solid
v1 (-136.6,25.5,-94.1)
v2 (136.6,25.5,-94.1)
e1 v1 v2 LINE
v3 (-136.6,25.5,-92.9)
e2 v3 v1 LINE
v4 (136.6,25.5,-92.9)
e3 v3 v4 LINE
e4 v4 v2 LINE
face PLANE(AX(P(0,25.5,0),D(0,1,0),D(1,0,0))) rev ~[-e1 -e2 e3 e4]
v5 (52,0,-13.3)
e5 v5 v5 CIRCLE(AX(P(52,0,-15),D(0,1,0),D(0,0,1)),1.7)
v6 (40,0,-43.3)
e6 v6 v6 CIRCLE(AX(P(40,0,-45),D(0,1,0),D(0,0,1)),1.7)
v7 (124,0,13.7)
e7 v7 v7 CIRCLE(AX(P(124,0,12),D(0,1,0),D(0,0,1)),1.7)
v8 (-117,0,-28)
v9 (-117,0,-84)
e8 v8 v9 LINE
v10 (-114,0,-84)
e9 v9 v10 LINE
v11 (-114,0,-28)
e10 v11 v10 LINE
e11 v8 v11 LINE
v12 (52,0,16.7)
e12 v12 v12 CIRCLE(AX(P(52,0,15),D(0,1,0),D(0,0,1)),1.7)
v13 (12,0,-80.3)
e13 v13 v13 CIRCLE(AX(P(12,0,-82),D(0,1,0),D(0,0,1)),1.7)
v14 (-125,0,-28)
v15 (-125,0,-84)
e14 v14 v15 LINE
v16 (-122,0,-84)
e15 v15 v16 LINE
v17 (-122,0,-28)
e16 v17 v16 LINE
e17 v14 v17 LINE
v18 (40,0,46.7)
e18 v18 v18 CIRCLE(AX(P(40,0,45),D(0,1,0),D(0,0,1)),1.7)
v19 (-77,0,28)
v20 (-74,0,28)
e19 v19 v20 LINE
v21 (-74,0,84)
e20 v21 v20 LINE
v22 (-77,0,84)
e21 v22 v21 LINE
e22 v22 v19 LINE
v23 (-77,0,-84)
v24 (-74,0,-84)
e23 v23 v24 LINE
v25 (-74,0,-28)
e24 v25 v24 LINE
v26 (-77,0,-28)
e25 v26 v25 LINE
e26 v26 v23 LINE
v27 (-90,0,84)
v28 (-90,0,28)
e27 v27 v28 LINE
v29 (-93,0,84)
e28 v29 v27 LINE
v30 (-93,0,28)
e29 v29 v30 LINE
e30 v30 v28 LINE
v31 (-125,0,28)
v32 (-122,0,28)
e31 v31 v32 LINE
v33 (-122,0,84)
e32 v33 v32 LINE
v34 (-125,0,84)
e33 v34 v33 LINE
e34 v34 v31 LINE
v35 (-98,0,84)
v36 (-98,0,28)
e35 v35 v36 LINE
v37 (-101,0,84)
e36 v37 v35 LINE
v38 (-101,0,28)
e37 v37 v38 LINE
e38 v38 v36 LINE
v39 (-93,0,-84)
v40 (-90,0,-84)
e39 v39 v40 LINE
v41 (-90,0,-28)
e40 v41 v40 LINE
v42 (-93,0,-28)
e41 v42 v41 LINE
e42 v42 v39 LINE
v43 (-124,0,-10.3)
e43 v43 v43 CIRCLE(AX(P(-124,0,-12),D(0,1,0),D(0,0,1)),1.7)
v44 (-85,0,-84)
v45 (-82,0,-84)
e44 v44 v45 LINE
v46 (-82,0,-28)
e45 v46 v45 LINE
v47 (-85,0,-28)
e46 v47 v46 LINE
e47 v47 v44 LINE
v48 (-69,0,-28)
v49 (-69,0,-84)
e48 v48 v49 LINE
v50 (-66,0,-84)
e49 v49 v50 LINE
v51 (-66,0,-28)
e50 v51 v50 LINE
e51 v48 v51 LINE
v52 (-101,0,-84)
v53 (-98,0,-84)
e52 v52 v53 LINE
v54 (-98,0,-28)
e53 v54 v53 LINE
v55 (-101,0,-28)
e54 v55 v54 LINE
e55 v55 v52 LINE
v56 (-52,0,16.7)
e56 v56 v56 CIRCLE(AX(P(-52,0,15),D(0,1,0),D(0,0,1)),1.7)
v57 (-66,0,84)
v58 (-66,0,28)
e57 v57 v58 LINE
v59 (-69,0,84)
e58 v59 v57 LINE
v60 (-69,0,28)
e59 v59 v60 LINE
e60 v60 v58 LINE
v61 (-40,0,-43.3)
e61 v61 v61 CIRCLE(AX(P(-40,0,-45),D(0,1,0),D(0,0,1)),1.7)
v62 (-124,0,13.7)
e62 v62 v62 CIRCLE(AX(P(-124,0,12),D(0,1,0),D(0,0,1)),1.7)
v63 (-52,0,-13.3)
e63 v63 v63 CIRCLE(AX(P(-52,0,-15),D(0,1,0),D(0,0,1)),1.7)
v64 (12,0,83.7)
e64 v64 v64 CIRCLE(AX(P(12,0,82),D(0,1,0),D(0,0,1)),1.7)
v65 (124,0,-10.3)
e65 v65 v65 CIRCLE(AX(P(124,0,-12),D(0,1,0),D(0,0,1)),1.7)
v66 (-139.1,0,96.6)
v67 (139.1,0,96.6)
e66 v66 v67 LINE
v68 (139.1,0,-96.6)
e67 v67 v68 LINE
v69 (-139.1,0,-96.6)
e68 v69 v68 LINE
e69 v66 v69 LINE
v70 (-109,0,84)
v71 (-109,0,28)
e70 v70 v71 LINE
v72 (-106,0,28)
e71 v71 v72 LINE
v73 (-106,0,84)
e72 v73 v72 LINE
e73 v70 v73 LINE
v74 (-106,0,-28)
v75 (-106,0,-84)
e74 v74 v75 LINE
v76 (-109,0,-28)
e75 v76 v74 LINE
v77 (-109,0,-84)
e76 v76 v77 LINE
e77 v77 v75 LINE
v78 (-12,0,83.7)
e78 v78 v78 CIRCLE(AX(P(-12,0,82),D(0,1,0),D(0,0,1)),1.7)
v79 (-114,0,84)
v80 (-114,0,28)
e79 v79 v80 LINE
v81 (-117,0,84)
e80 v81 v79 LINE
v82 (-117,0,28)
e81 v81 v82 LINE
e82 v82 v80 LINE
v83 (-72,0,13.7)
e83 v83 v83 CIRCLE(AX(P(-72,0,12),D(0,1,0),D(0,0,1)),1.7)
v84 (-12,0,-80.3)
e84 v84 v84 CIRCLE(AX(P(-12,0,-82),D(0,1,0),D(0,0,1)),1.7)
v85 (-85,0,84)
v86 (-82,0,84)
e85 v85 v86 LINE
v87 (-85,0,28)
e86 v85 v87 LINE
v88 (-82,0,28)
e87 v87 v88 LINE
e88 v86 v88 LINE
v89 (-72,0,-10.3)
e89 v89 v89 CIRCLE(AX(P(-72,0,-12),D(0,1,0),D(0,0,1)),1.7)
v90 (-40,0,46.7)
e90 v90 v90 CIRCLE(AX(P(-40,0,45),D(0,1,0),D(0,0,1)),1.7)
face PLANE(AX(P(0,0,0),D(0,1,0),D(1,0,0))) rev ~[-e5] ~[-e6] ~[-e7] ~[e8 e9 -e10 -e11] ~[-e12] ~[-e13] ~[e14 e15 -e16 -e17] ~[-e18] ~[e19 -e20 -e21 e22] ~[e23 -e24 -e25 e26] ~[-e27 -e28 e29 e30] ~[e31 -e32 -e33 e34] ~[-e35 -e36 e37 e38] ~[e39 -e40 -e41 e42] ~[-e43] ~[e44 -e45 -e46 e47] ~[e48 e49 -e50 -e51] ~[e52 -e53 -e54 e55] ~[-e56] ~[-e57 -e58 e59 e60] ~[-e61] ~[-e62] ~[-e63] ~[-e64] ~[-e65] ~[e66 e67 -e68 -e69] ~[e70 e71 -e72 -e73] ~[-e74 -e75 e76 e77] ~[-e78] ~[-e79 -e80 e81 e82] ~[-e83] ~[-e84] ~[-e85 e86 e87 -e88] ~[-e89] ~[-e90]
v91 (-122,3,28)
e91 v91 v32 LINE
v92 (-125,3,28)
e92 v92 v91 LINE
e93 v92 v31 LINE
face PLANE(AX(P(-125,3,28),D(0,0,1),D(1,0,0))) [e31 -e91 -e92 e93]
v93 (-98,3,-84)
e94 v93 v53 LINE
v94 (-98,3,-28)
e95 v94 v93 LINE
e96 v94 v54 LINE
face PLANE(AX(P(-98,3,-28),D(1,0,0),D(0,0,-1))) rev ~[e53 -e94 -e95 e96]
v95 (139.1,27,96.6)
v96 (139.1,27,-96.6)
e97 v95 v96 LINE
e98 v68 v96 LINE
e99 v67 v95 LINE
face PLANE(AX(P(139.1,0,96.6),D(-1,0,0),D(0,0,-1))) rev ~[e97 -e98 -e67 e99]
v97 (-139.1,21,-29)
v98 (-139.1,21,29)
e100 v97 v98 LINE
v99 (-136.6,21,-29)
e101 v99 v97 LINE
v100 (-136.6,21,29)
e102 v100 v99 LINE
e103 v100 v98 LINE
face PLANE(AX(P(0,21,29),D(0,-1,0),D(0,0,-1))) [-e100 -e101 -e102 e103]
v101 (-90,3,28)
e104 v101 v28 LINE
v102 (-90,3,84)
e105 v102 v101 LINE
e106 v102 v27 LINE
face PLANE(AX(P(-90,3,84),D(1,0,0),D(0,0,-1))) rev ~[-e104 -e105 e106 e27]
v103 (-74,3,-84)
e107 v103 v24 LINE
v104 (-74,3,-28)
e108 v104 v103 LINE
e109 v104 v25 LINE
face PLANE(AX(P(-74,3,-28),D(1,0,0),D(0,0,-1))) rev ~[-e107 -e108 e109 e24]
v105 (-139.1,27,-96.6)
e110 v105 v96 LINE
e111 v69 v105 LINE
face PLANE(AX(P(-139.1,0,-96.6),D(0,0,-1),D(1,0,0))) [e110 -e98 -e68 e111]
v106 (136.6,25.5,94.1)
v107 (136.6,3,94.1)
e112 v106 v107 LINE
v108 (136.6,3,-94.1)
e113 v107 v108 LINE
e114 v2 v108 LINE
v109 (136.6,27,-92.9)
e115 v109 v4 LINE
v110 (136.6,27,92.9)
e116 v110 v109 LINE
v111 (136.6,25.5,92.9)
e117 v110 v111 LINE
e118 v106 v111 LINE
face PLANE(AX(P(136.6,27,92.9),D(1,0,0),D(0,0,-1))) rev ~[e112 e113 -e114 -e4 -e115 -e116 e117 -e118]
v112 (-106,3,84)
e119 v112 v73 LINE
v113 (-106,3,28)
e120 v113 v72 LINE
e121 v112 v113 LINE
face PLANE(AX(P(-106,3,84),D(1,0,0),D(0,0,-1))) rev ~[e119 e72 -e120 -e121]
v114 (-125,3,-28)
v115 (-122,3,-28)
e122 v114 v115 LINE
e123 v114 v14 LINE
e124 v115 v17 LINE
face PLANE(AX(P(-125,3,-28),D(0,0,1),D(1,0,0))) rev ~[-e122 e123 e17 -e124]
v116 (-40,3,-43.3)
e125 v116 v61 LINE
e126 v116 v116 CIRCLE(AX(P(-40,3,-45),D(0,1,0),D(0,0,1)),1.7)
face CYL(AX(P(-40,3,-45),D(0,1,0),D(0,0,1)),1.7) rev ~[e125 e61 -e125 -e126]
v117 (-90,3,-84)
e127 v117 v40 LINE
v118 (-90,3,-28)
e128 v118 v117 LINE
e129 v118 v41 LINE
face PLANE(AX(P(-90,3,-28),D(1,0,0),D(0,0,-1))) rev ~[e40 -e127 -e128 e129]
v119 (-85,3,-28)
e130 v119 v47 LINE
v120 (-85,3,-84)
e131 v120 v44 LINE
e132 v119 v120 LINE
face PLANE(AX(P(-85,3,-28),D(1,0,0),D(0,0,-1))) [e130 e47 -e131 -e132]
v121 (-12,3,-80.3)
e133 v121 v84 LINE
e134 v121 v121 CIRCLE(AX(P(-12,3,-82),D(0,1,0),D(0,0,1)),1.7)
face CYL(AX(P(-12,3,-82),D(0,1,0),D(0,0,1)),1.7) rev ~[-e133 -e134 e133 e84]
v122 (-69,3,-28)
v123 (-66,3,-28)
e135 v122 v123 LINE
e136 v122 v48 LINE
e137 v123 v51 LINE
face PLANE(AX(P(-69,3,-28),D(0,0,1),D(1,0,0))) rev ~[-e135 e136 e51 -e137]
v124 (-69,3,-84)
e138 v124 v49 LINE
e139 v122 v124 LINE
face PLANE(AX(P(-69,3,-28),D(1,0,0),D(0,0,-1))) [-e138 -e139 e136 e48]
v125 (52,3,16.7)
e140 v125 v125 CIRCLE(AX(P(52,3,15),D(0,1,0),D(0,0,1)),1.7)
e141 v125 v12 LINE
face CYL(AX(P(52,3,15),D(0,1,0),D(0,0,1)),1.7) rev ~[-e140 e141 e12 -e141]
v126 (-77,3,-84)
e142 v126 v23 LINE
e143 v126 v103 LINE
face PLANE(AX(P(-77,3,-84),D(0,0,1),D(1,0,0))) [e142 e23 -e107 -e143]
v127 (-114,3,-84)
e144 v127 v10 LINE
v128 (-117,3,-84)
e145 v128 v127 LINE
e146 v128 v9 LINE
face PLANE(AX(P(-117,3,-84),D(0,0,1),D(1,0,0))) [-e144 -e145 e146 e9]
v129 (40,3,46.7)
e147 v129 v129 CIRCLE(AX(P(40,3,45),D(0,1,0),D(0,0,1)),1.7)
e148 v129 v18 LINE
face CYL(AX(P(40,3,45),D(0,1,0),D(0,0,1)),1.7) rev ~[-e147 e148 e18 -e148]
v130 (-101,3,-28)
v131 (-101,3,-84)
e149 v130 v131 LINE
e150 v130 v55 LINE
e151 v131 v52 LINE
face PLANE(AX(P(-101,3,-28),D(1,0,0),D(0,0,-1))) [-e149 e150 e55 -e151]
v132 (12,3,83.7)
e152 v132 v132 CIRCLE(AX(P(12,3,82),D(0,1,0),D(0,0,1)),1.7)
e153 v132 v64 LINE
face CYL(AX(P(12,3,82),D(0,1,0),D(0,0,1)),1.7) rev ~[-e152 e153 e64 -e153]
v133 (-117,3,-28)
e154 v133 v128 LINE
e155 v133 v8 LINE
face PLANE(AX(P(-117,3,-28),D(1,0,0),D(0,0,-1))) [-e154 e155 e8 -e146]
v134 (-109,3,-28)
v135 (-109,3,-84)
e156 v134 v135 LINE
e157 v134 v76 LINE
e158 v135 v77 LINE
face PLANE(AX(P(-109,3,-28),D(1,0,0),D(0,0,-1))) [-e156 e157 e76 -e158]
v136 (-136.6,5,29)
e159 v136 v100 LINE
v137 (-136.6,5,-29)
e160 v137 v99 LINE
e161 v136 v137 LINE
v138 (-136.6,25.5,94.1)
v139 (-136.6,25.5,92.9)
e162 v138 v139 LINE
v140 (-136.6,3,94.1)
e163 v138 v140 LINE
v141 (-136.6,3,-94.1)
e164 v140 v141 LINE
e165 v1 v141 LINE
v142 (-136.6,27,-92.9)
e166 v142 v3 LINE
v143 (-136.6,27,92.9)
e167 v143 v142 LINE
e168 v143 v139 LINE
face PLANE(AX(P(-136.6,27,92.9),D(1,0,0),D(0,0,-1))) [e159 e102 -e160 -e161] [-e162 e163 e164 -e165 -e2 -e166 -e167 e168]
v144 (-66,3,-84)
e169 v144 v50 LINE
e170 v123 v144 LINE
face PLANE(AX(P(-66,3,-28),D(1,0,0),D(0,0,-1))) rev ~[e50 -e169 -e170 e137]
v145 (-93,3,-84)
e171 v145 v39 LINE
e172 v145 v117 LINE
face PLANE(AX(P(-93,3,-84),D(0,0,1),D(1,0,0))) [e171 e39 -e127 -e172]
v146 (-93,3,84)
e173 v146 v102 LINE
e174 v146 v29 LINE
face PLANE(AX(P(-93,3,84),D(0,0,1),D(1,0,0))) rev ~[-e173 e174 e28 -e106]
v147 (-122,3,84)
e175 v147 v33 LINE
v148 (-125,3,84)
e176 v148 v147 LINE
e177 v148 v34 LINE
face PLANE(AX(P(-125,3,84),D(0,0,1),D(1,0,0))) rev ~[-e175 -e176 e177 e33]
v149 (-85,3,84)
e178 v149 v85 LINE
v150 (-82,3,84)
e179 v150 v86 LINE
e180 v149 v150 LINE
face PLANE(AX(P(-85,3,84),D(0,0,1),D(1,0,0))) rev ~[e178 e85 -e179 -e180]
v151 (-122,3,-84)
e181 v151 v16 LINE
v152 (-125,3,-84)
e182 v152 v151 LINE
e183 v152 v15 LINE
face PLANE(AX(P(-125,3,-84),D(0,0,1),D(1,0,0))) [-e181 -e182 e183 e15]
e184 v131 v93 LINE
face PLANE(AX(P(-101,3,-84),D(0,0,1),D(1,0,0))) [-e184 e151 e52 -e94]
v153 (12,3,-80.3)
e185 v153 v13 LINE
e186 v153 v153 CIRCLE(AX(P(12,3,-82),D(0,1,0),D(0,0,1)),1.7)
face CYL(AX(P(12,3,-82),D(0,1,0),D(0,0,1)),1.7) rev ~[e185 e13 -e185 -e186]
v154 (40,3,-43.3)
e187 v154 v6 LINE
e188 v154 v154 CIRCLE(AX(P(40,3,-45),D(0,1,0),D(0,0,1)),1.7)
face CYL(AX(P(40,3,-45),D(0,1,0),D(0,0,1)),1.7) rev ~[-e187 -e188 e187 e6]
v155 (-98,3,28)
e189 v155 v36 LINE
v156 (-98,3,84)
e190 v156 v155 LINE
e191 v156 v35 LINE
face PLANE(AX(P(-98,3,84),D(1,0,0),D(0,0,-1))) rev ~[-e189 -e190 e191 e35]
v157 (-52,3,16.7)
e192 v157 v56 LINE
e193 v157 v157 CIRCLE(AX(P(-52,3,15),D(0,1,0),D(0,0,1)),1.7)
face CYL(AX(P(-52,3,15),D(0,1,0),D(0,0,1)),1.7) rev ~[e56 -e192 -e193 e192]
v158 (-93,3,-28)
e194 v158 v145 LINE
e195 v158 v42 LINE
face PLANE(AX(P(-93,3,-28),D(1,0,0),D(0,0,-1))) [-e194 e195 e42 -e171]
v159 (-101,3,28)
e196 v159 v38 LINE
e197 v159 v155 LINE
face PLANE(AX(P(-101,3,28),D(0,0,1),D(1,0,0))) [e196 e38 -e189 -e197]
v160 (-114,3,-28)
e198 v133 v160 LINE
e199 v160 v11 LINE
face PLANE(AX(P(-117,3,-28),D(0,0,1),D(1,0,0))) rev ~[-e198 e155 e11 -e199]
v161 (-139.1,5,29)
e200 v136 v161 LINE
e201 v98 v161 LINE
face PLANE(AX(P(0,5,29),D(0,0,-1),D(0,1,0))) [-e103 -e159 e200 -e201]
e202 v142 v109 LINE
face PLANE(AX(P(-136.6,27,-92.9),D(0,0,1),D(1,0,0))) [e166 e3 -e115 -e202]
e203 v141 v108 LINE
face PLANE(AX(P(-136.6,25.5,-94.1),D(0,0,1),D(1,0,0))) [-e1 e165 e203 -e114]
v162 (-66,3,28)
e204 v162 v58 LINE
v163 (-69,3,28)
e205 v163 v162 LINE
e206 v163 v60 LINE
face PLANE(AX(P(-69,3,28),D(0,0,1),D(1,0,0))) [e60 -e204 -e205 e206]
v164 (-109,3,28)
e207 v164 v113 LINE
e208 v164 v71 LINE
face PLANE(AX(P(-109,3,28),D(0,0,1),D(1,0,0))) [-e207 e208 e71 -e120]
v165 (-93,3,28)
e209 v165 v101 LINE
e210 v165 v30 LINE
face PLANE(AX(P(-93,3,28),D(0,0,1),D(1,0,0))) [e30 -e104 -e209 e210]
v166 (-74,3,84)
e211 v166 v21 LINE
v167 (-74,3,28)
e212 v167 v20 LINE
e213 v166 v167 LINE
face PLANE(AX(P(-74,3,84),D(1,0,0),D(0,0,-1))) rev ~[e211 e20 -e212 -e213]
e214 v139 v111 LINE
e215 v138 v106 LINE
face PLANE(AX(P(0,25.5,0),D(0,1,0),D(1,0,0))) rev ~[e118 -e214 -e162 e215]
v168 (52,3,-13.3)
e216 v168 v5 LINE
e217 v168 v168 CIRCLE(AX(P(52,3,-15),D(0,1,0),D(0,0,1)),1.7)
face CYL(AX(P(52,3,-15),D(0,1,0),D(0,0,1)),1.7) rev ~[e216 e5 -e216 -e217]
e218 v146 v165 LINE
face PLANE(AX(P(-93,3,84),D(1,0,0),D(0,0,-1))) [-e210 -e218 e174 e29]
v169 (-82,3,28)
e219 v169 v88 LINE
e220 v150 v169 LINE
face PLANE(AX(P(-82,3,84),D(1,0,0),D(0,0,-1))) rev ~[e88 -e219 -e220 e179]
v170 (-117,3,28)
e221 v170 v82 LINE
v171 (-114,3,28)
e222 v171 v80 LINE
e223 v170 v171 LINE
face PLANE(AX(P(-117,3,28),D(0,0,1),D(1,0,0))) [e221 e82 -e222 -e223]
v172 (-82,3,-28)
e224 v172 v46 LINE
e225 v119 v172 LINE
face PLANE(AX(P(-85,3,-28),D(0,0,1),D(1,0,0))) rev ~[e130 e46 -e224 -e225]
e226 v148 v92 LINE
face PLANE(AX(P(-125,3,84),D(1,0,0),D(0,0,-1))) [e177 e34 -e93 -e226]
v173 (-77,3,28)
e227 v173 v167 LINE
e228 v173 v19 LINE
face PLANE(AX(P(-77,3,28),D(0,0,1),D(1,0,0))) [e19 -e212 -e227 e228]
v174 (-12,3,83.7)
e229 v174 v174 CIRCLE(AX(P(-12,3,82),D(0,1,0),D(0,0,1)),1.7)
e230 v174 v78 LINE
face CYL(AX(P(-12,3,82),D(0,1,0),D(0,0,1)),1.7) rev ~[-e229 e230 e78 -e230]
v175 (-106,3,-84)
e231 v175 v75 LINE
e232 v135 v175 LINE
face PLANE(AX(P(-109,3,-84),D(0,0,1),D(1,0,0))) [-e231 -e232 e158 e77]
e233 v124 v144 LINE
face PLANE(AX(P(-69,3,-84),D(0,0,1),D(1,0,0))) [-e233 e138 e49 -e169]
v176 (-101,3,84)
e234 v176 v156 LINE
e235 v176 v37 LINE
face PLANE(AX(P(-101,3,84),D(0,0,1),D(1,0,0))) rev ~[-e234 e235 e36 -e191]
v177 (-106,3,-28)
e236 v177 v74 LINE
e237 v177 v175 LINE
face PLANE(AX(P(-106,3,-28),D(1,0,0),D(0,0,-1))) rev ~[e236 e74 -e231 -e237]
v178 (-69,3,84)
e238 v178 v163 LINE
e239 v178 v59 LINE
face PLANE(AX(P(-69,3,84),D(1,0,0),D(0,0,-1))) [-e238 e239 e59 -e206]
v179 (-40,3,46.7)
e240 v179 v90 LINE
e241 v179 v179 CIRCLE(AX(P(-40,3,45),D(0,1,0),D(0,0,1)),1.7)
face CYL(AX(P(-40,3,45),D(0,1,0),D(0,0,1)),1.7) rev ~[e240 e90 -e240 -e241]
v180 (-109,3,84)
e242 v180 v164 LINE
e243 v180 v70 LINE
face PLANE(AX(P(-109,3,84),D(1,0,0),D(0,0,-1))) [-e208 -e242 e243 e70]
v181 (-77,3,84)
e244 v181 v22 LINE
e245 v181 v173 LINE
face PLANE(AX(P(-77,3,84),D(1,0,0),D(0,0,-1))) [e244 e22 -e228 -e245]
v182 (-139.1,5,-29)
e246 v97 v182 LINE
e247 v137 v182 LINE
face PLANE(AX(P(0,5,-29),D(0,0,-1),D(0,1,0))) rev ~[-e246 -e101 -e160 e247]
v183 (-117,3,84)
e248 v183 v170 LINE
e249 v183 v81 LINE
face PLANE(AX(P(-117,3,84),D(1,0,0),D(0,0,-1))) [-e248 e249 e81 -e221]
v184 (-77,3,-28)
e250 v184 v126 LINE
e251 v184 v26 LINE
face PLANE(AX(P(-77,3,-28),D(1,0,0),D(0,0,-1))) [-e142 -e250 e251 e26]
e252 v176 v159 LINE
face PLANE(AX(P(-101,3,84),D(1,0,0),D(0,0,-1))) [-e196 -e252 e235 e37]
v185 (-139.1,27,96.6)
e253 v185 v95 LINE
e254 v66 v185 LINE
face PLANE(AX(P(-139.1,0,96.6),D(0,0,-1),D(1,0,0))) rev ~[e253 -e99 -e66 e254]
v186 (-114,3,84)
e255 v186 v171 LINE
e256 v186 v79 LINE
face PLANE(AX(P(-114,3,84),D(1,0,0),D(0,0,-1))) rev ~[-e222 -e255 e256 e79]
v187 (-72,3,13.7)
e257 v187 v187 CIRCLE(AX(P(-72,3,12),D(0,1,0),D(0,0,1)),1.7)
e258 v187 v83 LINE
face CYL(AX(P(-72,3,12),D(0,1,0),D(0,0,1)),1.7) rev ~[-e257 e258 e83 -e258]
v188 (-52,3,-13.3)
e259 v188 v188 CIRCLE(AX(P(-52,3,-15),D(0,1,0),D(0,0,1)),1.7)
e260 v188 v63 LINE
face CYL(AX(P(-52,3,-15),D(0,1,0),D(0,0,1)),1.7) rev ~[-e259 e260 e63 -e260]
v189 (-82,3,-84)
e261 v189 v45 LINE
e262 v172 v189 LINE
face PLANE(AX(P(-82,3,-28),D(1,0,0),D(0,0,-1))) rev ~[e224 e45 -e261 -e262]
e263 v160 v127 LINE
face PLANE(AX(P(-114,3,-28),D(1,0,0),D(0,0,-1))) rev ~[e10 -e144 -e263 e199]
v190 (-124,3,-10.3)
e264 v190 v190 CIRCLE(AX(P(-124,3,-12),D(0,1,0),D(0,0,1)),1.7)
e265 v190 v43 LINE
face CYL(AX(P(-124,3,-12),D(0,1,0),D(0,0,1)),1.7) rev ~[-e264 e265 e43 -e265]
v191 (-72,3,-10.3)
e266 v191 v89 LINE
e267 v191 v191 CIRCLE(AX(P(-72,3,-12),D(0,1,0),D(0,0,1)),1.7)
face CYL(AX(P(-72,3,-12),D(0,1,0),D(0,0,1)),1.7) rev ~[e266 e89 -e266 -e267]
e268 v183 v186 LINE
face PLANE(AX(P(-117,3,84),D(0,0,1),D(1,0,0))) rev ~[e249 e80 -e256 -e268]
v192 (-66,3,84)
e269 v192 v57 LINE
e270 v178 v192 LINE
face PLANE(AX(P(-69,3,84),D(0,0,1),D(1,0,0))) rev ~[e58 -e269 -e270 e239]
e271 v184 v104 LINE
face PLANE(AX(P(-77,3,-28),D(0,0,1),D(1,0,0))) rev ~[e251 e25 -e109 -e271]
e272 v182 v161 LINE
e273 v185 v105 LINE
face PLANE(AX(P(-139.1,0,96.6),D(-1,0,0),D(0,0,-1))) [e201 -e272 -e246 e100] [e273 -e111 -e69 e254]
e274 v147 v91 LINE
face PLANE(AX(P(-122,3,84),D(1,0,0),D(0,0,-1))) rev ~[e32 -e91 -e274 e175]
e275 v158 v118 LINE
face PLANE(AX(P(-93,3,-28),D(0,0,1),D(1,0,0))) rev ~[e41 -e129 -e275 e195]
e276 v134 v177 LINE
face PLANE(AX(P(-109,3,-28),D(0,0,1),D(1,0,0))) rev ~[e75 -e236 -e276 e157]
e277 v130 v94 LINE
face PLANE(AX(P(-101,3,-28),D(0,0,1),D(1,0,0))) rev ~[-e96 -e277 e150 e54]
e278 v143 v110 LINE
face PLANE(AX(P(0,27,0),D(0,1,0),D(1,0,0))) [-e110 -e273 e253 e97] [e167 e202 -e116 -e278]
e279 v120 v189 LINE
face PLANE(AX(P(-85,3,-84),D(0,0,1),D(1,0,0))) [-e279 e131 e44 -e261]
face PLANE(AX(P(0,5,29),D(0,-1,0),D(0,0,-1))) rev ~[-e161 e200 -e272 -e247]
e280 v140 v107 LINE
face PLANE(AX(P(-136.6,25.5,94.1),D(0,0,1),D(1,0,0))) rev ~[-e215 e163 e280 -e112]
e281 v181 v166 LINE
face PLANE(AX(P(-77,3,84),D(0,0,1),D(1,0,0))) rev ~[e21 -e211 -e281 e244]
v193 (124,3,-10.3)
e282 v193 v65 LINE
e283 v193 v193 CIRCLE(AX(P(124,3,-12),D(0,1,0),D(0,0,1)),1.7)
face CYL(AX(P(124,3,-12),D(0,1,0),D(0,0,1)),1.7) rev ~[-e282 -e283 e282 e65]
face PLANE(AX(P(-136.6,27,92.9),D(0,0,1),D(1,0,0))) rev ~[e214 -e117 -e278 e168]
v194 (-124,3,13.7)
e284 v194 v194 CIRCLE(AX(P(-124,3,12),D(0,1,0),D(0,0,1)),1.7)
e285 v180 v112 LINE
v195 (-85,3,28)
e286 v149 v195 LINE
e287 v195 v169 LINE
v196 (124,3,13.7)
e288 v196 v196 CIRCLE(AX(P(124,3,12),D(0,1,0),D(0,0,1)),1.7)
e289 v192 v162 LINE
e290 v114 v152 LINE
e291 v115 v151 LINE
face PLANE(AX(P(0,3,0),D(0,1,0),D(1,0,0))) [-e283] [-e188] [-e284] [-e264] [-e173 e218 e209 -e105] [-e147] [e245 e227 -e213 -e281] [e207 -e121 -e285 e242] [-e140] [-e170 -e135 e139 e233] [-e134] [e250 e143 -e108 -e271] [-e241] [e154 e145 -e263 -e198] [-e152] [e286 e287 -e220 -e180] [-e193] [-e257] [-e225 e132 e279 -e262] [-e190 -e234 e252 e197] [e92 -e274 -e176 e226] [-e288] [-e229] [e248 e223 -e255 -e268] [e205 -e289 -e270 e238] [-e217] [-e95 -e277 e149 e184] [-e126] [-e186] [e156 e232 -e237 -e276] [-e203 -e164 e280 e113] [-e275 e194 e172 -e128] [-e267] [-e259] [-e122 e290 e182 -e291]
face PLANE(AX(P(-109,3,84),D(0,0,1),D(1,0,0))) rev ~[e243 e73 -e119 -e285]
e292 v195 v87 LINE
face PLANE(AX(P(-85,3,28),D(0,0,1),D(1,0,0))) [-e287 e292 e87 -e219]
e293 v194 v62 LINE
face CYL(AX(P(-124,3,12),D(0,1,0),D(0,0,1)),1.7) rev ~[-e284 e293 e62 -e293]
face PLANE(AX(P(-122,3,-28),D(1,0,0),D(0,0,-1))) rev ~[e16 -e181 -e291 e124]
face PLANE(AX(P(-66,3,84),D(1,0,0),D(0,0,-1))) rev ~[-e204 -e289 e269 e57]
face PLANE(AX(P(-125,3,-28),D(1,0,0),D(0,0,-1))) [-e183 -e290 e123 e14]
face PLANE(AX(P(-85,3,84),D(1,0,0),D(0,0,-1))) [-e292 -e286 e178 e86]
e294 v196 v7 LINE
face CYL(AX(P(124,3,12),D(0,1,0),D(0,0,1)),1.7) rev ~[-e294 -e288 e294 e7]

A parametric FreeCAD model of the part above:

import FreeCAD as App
import Part
import Sketcher
from FreeCAD import Vector

doc = App.newDocument("Part")
params = doc.addObject("Spreadsheet::Sheet", "Params")
for row, (alias, value) in enumerate([
    ("sketch1_width", "278.2 mm"),
    ("sketch1_height", "193.2 mm"),
    ("pad1_length", "27 mm"),
    ("sketch2_width", "273.2 mm"),
    ("sketch2_height", "185.8 mm"),
    ("pocket1_length", "1.5 mm"),
    ("sketch3_width", "273.2 mm"),
    ("sketch3_height", "188.2 mm"),
    ("pocket2_length", "22.5 mm"),
    ("sketch4_width", "3 mm"),
    ("sketch4_height", "56 mm"),
    ("pocket3_length", "4 mm"),
    ("sketch5_width", "16 mm"),
    ("sketch5_height", "58 mm"),
    ("pocket4_length", "140.1 mm"),
    ("sketch6_diameter", "3.4 mm"),
    ("pocket5_length", "4 mm"),
], start=1):
    params.set(f"A{row}", alias)
    params.set(f"B{row}", "=" + value)
    params.setAlias(f"B{row}", alias)

body = doc.addObject("PartDesign::Body", "Body")

# Sketch on XZ plane
sketch1 = body.newObject("Sketcher::SketchObject", "Sketch")
sketch1.AttachmentSupport = (doc.getObject("XZ_Plane"), [""])
sketch1.MapMode = "FlatFace"
sketch1.addGeometry(Part.LineSegment(Vector(-139, -97, 0), Vector(-139, 97, 0)), False)
sketch1.addGeometry(Part.LineSegment(Vector(-139, 97, 0), Vector(139, 97, 0)), False)
sketch1.addGeometry(Part.LineSegment(Vector(139, 97, 0), Vector(139, -97, 0)), False)
sketch1.addGeometry(Part.LineSegment(Vector(139, -97, 0), Vector(-139, -97, 0)), False)
sketch1.addConstraint(Sketcher.Constraint("Coincident", 0, 2, 1, 1))
sketch1.addConstraint(Sketcher.Constraint("Coincident", 1, 2, 2, 1))
sketch1.addConstraint(Sketcher.Constraint("Coincident", 2, 2, 3, 1))
sketch1.addConstraint(Sketcher.Constraint("Coincident", 3, 2, 0, 1))
sketch1.addConstraint(Sketcher.Constraint("Vertical", 0))
sketch1.addConstraint(Sketcher.Constraint("Horizontal", 1))
sketch1.addConstraint(Sketcher.Constraint("Vertical", 2))
sketch1.addConstraint(Sketcher.Constraint("Horizontal", 3))
sketch1.addConstraint(Sketcher.Constraint("Symmetric", 0, 2, 2, 2, -1, 1))
sketch1.addConstraint(Sketcher.Constraint("DistanceX", 1, 1, 1, 2, 278.2))
sketch1.addConstraint(Sketcher.Constraint("DistanceY", 0, 1, 0, 2, 193.2))
sketch1.setExpression("Constraints[9]", "Params.sketch1_width")
sketch1.setExpression("Constraints[10]", "Params.sketch1_height")
pad1 = body.newObject("PartDesign::Pad", "Pad")
pad1.Profile = sketch1
pad1.setExpression("Length", "Params.pad1_length")
pad1.Reversed = True

# Sketch on XZ plane
sketch2 = body.newObject("Sketcher::SketchObject", "Sketch001")
sketch2.AttachmentSupport = (doc.getObject("XZ_Plane"), [""])
sketch2.MapMode = "FlatFace"
sketch2.AttachmentOffset = App.Placement(Vector(0, 0, -27), App.Rotation())
sketch2.addGeometry(Part.LineSegment(Vector(-137, -93, 0), Vector(-137, 93, 0)), False)
sketch2.addGeometry(Part.LineSegment(Vector(-137, 93, 0), Vector(137, 93, 0)), False)
sketch2.addGeometry(Part.LineSegment(Vector(137, 93, 0), Vector(137, -93, 0)), False)
sketch2.addGeometry(Part.LineSegment(Vector(137, -93, 0), Vector(-137, -93, 0)), False)
sketch2.addConstraint(Sketcher.Constraint("Coincident", 0, 2, 1, 1))
sketch2.addConstraint(Sketcher.Constraint("Coincident", 1, 2, 2, 1))
sketch2.addConstraint(Sketcher.Constraint("Coincident", 2, 2, 3, 1))
sketch2.addConstraint(Sketcher.Constraint("Coincident", 3, 2, 0, 1))
sketch2.addConstraint(Sketcher.Constraint("Vertical", 0))
sketch2.addConstraint(Sketcher.Constraint("Horizontal", 1))
sketch2.addConstraint(Sketcher.Constraint("Vertical", 2))
sketch2.addConstraint(Sketcher.Constraint("Horizontal", 3))
sketch2.addConstraint(Sketcher.Constraint("Symmetric", 0, 2, 2, 2, -1, 1))
sketch2.addConstraint(Sketcher.Constraint("DistanceX", 1, 1, 1, 2, 273.2))
sketch2.addConstraint(Sketcher.Constraint("DistanceY", 0, 1, 0, 2, 185.8))
sketch2.setExpression("Constraints[9]", "Params.sketch2_width")
sketch2.setExpression("Constraints[10]", "Params.sketch2_height")
pocket1 = body.newObject("PartDesign::Pocket", "Pocket")
pocket1.Profile = sketch2
pocket1.setExpression("Length", "Params.pocket1_length")
pocket1.Reversed = True

# Sketch on XZ plane
sketch3 = body.newObject("Sketcher::SketchObject", "Sketch002")
sketch3.AttachmentSupport = (doc.getObject("XZ_Plane"), [""])
sketch3.MapMode = "FlatFace"
sketch3.AttachmentOffset = App.Placement(Vector(0, 0, -25.5), App.Rotation())
sketch3.addGeometry(Part.LineSegment(Vector(-137, -94, 0), Vector(-137, 94, 0)), False)
sketch3.addGeometry(Part.LineSegment(Vector(-137, 94, 0), Vector(137, 94, 0)), False)
sketch3.addGeometry(Part.LineSegment(Vector(137, 94, 0), Vector(137, -94, 0)), False)
sketch3.addGeometry(Part.LineSegment(Vector(137, -94, 0), Vector(-137, -94, 0)), False)
sketch3.addConstraint(Sketcher.Constraint("Coincident", 0, 2, 1, 1))
sketch3.addConstraint(Sketcher.Constraint("Coincident", 1, 2, 2, 1))
sketch3.addConstraint(Sketcher.Constraint("Coincident", 2, 2, 3, 1))
sketch3.addConstraint(Sketcher.Constraint("Coincident", 3, 2, 0, 1))
sketch3.addConstraint(Sketcher.Constraint("Vertical", 0))
sketch3.addConstraint(Sketcher.Constraint("Horizontal", 1))
sketch3.addConstraint(Sketcher.Constraint("Vertical", 2))
sketch3.addConstraint(Sketcher.Constraint("Horizontal", 3))
sketch3.addConstraint(Sketcher.Constraint("Symmetric", 0, 2, 2, 2, -1, 1))
sketch3.addConstraint(Sketcher.Constraint("DistanceX", 1, 1, 1, 2, 273.2))
sketch3.addConstraint(Sketcher.Constraint("DistanceY", 0, 1, 0, 2, 188.2))
sketch3.setExpression("Constraints[9]", "Params.sketch3_width")
sketch3.setExpression("Constraints[10]", "Params.sketch3_height")
pocket2 = body.newObject("PartDesign::Pocket", "Pocket001")
pocket2.Profile = sketch3
pocket2.setExpression("Length", "Params.pocket2_length")
pocket2.Reversed = True

# Sketch on XZ plane
sketch4 = body.newObject("Sketcher::SketchObject", "Sketch003")
sketch4.AttachmentSupport = (doc.getObject("XZ_Plane"), [""])
sketch4.MapMode = "FlatFace"
sketch4.AttachmentOffset = App.Placement(Vector(0, 0, -3), App.Rotation())
sketch4.addGeometry(Part.LineSegment(Vector(-69, -84, 0), Vector(-69, -28, 0)), False)
sketch4.addGeometry(Part.LineSegment(Vector(-69, -28, 0), Vector(-66, -28, 0)), False)
sketch4.addGeometry(Part.LineSegment(Vector(-66, -28, 0), Vector(-66, -84, 0)), False)
sketch4.addGeometry(Part.LineSegment(Vector(-66, -84, 0), Vector(-69, -84, 0)), False)
sketch4.addGeometry(Part.LineSegment(Vector(-69, 28, 0), Vector(-69, 84, 0)), False)
sketch4.addGeometry(Part.LineSegment(Vector(-69, 84, 0), Vector(-66, 84, 0)), False)
sketch4.addGeometry(Part.LineSegment(Vector(-66, 84, 0), Vector(-66, 28, 0)), False)
sketch4.addGeometry(Part.LineSegment(Vector(-66, 28, 0), Vector(-69, 28, 0)), False)
sketch4.addGeometry(Part.LineSegment(Vector(-77, -84, 0), Vector(-77, -28, 0)), False)
sketch4.addGeometry(Part.LineSegment(Vector(-77, -28, 0), Vector(-74, -28, 0)), False)
sketch4.addGeometry(Part.LineSegment(Vector(-74, -28, 0), Vector(-74, -84, 0)), False)
sketch4.addGeometry(Part.LineSegment(Vector(-74, -84, 0), Vector(-77, -84, 0)), False)
sketch4.addGeometry(Part.LineSegment(Vector(-77, 28, 0), Vector(-77, 84, 0)), False)
sketch4.addGeometry(Part.LineSegment(Vector(-77, 84, 0), Vector(-74, 84, 0)), False)
sketch4.addGeometry(Part.LineSegment(Vector(-74, 84, 0), Vector(-74, 28, 0)), False)
sketch4.addGeometry(Part.LineSegment(Vector(-74, 28, 0), Vector(-77, 28, 0)), False)
sketch4.addGeometry(Part.LineSegment(Vector(-85, -84, 0), Vector(-85, -28, 0)), False)
sketch4.addGeometry(Part.LineSegment(Vector(-85, -28, 0), Vector(-82, -28, 0)), False)
sketch4.addGeometry(Part.LineSegment(Vector(-82, -28, 0), Vector(-82, -84, 0)), False)
sketch4.addGeometry(Part.LineSegment(Vector(-82, -84, 0), Vector(-85, -84, 0)), False)
sketch4.addGeometry(Part.LineSegment(Vector(-85, 28, 0), Vector(-85, 84, 0)), False)
sketch4.addGeometry(Part.LineSegment(Vector(-85, 84, 0), Vector(-82, 84, 0)), False)
sketch4.addGeometry(Part.LineSegment(Vector(-82, 84, 0), Vector(-82, 28, 0)), False)
sketch4.addGeometry(Part.LineSegment(Vector(-82, 28, 0), Vector(-85, 28, 0)), False)
sketch4.addGeometry(Part.LineSegment(Vector(-93, -84, 0), Vector(-93, -28, 0)), False)
sketch4.addGeometry(Part.LineSegment(Vector(-93, -28, 0), Vector(-90, -28, 0)), False)
sketch4.addGeometry(Part.LineSegment(Vector(-90, -28, 0), Vector(-90, -84, 0)), False)
sketch4.addGeometry(Part.LineSegment(Vector(-90, -84, 0), Vector(-93, -84, 0)), False)
sketch4.addGeometry(Part.LineSegment(Vector(-93, 28, 0), Vector(-93, 84, 0)), False)
sketch4.addGeometry(Part.LineSegment(Vector(-93, 84, 0), Vector(-90, 84, 0)), False)
sketch4.addGeometry(Part.LineSegment(Vector(-90, 84, 0), Vector(-90, 28, 0)), False)
sketch4.addGeometry(Part.LineSegment(Vector(-90, 28, 0), Vector(-93, 28, 0)), False)
sketch4.addGeometry(Part.LineSegment(Vector(-101, -84, 0), Vector(-101, -28, 0)), False)
sketch4.addGeometry(Part.LineSegment(Vector(-101, -28, 0), Vector(-98, -28, 0)), False)
sketch4.addGeometry(Part.LineSegment(Vector(-98, -28, 0), Vector(-98, -84, 0)), False)
sketch4.addGeometry(Part.LineSegment(Vector(-98, -84, 0), Vector(-101, -84, 0)), False)
sketch4.addGeometry(Part.LineSegment(Vector(-101, 28, 0), Vector(-101, 84, 0)), False)
sketch4.addGeometry(Part.LineSegment(Vector(-101, 84, 0), Vector(-98, 84, 0)), False)
sketch4.addGeometry(Part.LineSegment(Vector(-98, 84, 0), Vector(-98, 28, 0)), False)
sketch4.addGeometry(Part.LineSegment(Vector(-98, 28, 0), Vector(-101, 28, 0)), False)
sketch4.addGeometry(Part.LineSegment(Vector(-109, -84, 0), Vector(-109, -28, 0)), False)
sketch4.addGeometry(Part.LineSegment(Vector(-109, -28, 0), Vector(-106, -28, 0)), False)
sketch4.addGeometry(Part.LineSegment(Vector(-106, -28, 0), Vector(-106, -84, 0)), False)
sketch4.addGeometry(Part.LineSegment(Vector(-106, -84, 0), Vector(-109, -84, 0)), False)
sketch4.addGeometry(Part.LineSegment(Vector(-109, 28, 0), Vector(-109, 84, 0)), False)
sketch4.addGeometry(Part.LineSegment(Vector(-109, 84, 0), Vector(-106, 84, 0)), False)
sketch4.addGeometry(Part.LineSegment(Vector(-106, 84, 0), Vector(-106, 28, 0)), False)
sketch4.addGeometry(Part.LineSegment(Vector(-106, 28, 0), Vector(-109, 28, 0)), False)
sketch4.addGeometry(Part.LineSegment(Vector(-117, -84, 0), Vector(-117, -28, 0)), False)
sketch4.addGeometry(Part.LineSegment(Vector(-117, -28, 0), Vector(-114, -28, 0)), False)
sketch4.addGeometry(Part.LineSegment(Vector(-114, -28, 0), Vector(-114, -84, 0)), False)
sketch4.addGeometry(Part.LineSegment(Vector(-114, -84, 0), Vector(-117, -84, 0)), False)
sketch4.addGeometry(Part.LineSegment(Vector(-117, 28, 0), Vector(-117, 84, 0)), False)
sketch4.addGeometry(Part.LineSegment(Vector(-117, 84, 0), Vector(-114, 84, 0)), False)
sketch4.addGeometry(Part.LineSegment(Vector(-114, 84, 0), Vector(-114, 28, 0)), False)
sketch4.addGeometry(Part.LineSegment(Vector(-114, 28, 0), Vector(-117, 28, 0)), False)
sketch4.addGeometry(Part.LineSegment(Vector(-125, -84, 0), Vector(-125, -28, 0)), False)
sketch4.addGeometry(Part.LineSegment(Vector(-125, -28, 0), Vector(-122, -28, 0)), False)
sketch4.addGeometry(Part.LineSegment(Vector(-122, -28, 0), Vector(-122, -84, 0)), False)
sketch4.addGeometry(Part.LineSegment(Vector(-122, -84, 0), Vector(-125, -84, 0)), False)
sketch4.addGeometry(Part.LineSegment(Vector(-125, 28, 0), Vector(-125, 84, 0)), False)
sketch4.addGeometry(Part.LineSegment(Vector(-125, 84, 0), Vector(-122, 84, 0)), False)
sketch4.addGeometry(Part.LineSegment(Vector(-122, 84, 0), Vector(-122, 28, 0)), False)
sketch4.addGeometry(Part.LineSegment(Vector(-122, 28, 0), Vector(-125, 28, 0)), False)
sketch4.addConstraint(Sketcher.Constraint("Coincident", 0, 2, 1, 1))
sketch4.addConstraint(Sketcher.Constraint("Coincident", 1, 2, 2, 1))
sketch4.addConstraint(Sketcher.Constraint("Coincident", 2, 2, 3, 1))
sketch4.addConstraint(Sketcher.Constraint("Coincident", 3, 2, 0, 1))
sketch4.addConstraint(Sketcher.Constraint("Coincident", 4, 2, 5, 1))
sketch4.addConstraint(Sketcher.Constraint("Coincident", 5, 2, 6, 1))
sketch4.addConstraint(Sketcher.Constraint("Coincident", 6, 2, 7, 1))
sketch4.addConstraint(Sketcher.Constraint("Coincident", 7, 2, 4, 1))
sketch4.addConstraint(Sketcher.Constraint("Coincident", 8, 2, 9, 1))
sketch4.addConstraint(Sketcher.Constraint("Coincident", 9, 2, 10, 1))
sketch4.addConstraint(Sketcher.Constraint("Coincident", 10, 2, 11, 1))
sketch4.addConstraint(Sketcher.Constraint("Coincident", 11, 2, 8, 1))
sketch4.addConstraint(Sketcher.Constraint("Coincident", 12, 2, 13, 1))
sketch4.addConstraint(Sketcher.Constraint("Coincident", 13, 2, 14, 1))
sketch4.addConstraint(Sketcher.Constraint("Coincident", 14, 2, 15, 1))
sketch4.addConstraint(Sketcher.Constraint("Coincident", 15, 2, 12, 1))
sketch4.addConstraint(Sketcher.Constraint("Coincident", 16, 2, 17, 1))
sketch4.addConstraint(Sketcher.Constraint("Coincident", 17, 2, 18, 1))
sketch4.addConstraint(Sketcher.Constraint("Coincident", 18, 2, 19, 1))
sketch4.addConstraint(Sketcher.Constraint("Coincident", 19, 2, 16, 1))
sketch4.addConstraint(Sketcher.Constraint("Coincident", 20, 2, 21, 1))
sketch4.addConstraint(Sketcher.Constraint("Coincident", 21, 2, 22, 1))
sketch4.addConstraint(Sketcher.Constraint("Coincident", 22, 2, 23, 1))
sketch4.addConstraint(Sketcher.Constraint("Coincident", 23, 2, 20, 1))
sketch4.addConstraint(Sketcher.Constraint("Coincident", 24, 2, 25, 1))
sketch4.addConstraint(Sketcher.Constraint("Coincident", 25, 2, 26, 1))
sketch4.addConstraint(Sketcher.Constraint("Coincident", 26, 2, 27, 1))
sketch4.addConstraint(Sketcher.Constraint("Coincident", 27, 2, 24, 1))
sketch4.addConstraint(Sketcher.Constraint("Coincident", 28, 2, 29, 1))
sketch4.addConstraint(Sketcher.Constraint("Coincident", 29, 2, 30, 1))
sketch4.addConstraint(Sketcher.Constraint("Coincident", 30, 2, 31, 1))
sketch4.addConstraint(Sketcher.Constraint("Coincident", 31, 2, 28, 1))
sketch4.addConstraint(Sketcher.Constraint("Coincident", 32, 2, 33, 1))
sketch4.addConstraint(Sketcher.Constraint("Coincident", 33, 2, 34, 1))
sketch4.addConstraint(Sketcher.Constraint("Coincident", 34, 2, 35, 1))
sketch4.addConstraint(Sketcher.Constraint("Coincident", 35, 2, 32, 1))
sketch4.addConstraint(Sketcher.Constraint("Coincident", 36, 2, 37, 1))
sketch4.addConstraint(Sketcher.Constraint("Coincident", 37, 2, 38, 1))
sketch4.addConstraint(Sketcher.Constraint("Coincident", 38, 2, 39, 1))
sketch4.addConstraint(Sketcher.Constraint("Coincident", 39, 2, 36, 1))
sketch4.addConstraint(Sketcher.Constraint("Coincident", 40, 2, 41, 1))
sketch4.addConstraint(Sketcher.Constraint("Coincident", 41, 2, 42, 1))
sketch4.addConstraint(Sketcher.Constraint("Coincident", 42, 2, 43, 1))
sketch4.addConstraint(Sketcher.Constraint("Coincident", 43, 2, 40, 1))
sketch4.addConstraint(Sketcher.Constraint("Coincident", 44, 2, 45, 1))
sketch4.addConstraint(Sketcher.Constraint("Coincident", 45, 2, 46, 1))
sketch4.addConstraint(Sketcher.Constraint("Coincident", 46, 2, 47, 1))
sketch4.addConstraint(Sketcher.Constraint("Coincident", 47, 2, 44, 1))
sketch4.addConstraint(Sketcher.Constraint("Coincident", 48, 2, 49, 1))
sketch4.addConstraint(Sketcher.Constraint("Coincident", 49, 2, 50, 1))
sketch4.addConstraint(Sketcher.Constraint("Coincident", 50, 2, 51, 1))
sketch4.addConstraint(Sketcher.Constraint("Coincident", 51, 2, 48, 1))
sketch4.addConstraint(Sketcher.Constraint("Coincident", 52, 2, 53, 1))
sketch4.addConstraint(Sketcher.Constraint("Coincident", 53, 2, 54, 1))
sketch4.addConstraint(Sketcher.Constraint("Coincident", 54, 2, 55, 1))
sketch4.addConstraint(Sketcher.Constraint("Coincident", 55, 2, 52, 1))
sketch4.addConstraint(Sketcher.Constraint("Coincident", 56, 2, 57, 1))
sketch4.addConstraint(Sketcher.Constraint("Coincident", 57, 2, 58, 1))
sketch4.addConstraint(Sketcher.Constraint("Coincident", 58, 2, 59, 1))
sketch4.addConstraint(Sketcher.Constraint("Coincident", 59, 2, 56, 1))
sketch4.addConstraint(Sketcher.Constraint("Coincident", 60, 2, 61, 1))
sketch4.addConstraint(Sketcher.Constraint("Coincident", 61, 2, 62, 1))
sketch4.addConstraint(Sketcher.Constraint("Coincident", 62, 2, 63, 1))
sketch4.addConstraint(Sketcher.Constraint("Coincident", 63, 2, 60, 1))
sketch4.addConstraint(Sketcher.Constraint("Vertical", 0))
sketch4.addConstraint(Sketcher.Constraint("Horizontal", 1))
sketch4.addConstraint(Sketcher.Constraint("Vertical", 2))
sketch4.addConstraint(Sketcher.Constraint("Horizontal", 3))
sketch4.addConstraint(Sketcher.Constraint("Vertical", 4))
sketch4.addConstraint(Sketcher.Constraint("Horizontal", 5))
sketch4.addConstraint(Sketcher.Constraint("Vertical", 6))
sketch4.addConstraint(Sketcher.Constraint("Horizontal", 7))
sketch4.addConstraint(Sketcher.Constraint("Vertical", 8))
sketch4.addConstraint(Sketcher.Constraint("Horizontal", 9))
sketch4.addConstraint(Sketcher.Constraint("Vertical", 10))
sketch4.addConstraint(Sketcher.Constraint("Horizontal", 11))
sketch4.addConstraint(Sketcher.Constraint("Vertical", 12))
sketch4.addConstraint(Sketcher.Constraint("Horizontal", 13))
sketch4.addConstraint(Sketcher.Constraint("Vertical", 14))
sketch4.addConstraint(Sketcher.Constraint("Horizontal", 15))
sketch4.addConstraint(Sketcher.Constraint("Vertical", 16))
sketch4.addConstraint(Sketcher.Constraint("Horizontal", 17))
sketch4.addConstraint(Sketcher.Constraint("Vertical", 18))
sketch4.addConstraint(Sketcher.Constraint("Horizontal", 19))
sketch4.addConstraint(Sketcher.Constraint("Vertical", 20))
sketch4.addConstraint(Sketcher.Constraint("Horizontal", 21))
sketch4.addConstraint(Sketcher.Constraint("Vertical", 22))
sketch4.addConstraint(Sketcher.Constraint("Horizontal", 23))
sketch4.addConstraint(Sketcher.Constraint("Vertical", 24))
sketch4.addConstraint(Sketcher.Constraint("Horizontal", 25))
sketch4.addConstraint(Sketcher.Constraint("Vertical", 26))
sketch4.addConstraint(Sketcher.Constraint("Horizontal", 27))
sketch4.addConstraint(Sketcher.Constraint("Vertical", 28))
sketch4.addConstraint(Sketcher.Constraint("Horizontal", 29))
sketch4.addConstraint(Sketcher.Constraint("Vertical", 30))
sketch4.addConstraint(Sketcher.Constraint("Horizontal", 31))
sketch4.addConstraint(Sketcher.Constraint("Vertical", 32))
sketch4.addConstraint(Sketcher.Constraint("Horizontal", 33))
sketch4.addConstraint(Sketcher.Constraint("Vertical", 34))
sketch4.addConstraint(Sketcher.Constraint("Horizontal", 35))
sketch4.addConstraint(Sketcher.Constraint("Vertical", 36))
sketch4.addConstraint(Sketcher.Constraint("Horizontal", 37))
sketch4.addConstraint(Sketcher.Constraint("Vertical", 38))
sketch4.addConstraint(Sketcher.Constraint("Horizontal", 39))
sketch4.addConstraint(Sketcher.Constraint("Vertical", 40))
sketch4.addConstraint(Sketcher.Constraint("Horizontal", 41))
sketch4.addConstraint(Sketcher.Constraint("Vertical", 42))
sketch4.addConstraint(Sketcher.Constraint("Horizontal", 43))
sketch4.addConstraint(Sketcher.Constraint("Vertical", 44))
sketch4.addConstraint(Sketcher.Constraint("Horizontal", 45))
sketch4.addConstraint(Sketcher.Constraint("Vertical", 46))
sketch4.addConstraint(Sketcher.Constraint("Horizontal", 47))
sketch4.addConstraint(Sketcher.Constraint("Vertical", 48))
sketch4.addConstraint(Sketcher.Constraint("Horizontal", 49))
sketch4.addConstraint(Sketcher.Constraint("Vertical", 50))
sketch4.addConstraint(Sketcher.Constraint("Horizontal", 51))
sketch4.addConstraint(Sketcher.Constraint("Vertical", 52))
sketch4.addConstraint(Sketcher.Constraint("Horizontal", 53))
sketch4.addConstraint(Sketcher.Constraint("Vertical", 54))
sketch4.addConstraint(Sketcher.Constraint("Horizontal", 55))
sketch4.addConstraint(Sketcher.Constraint("Vertical", 56))
sketch4.addConstraint(Sketcher.Constraint("Horizontal", 57))
sketch4.addConstraint(Sketcher.Constraint("Vertical", 58))
sketch4.addConstraint(Sketcher.Constraint("Horizontal", 59))
sketch4.addConstraint(Sketcher.Constraint("Vertical", 60))
sketch4.addConstraint(Sketcher.Constraint("Horizontal", 61))
sketch4.addConstraint(Sketcher.Constraint("Vertical", 62))
sketch4.addConstraint(Sketcher.Constraint("Horizontal", 63))
sketch4.addConstraint(Sketcher.Constraint("Symmetric", 3, 2, 4, 2, -1))
sketch4.addConstraint(Sketcher.Constraint("Symmetric", 1, 2, 6, 2, -1))
sketch4.addConstraint(Sketcher.Constraint("Symmetric", 11, 2, 12, 2, -1))
sketch4.addConstraint(Sketcher.Constraint("Symmetric", 9, 2, 14, 2, -1))
sketch4.addConstraint(Sketcher.Constraint("Symmetric", 19, 2, 20, 2, -1))
sketch4.addConstraint(Sketcher.Constraint("Symmetric", 17, 2, 22, 2, -1))
sketch4.addConstraint(Sketcher.Constraint("Symmetric", 27, 2, 28, 2, -1))
sketch4.addConstraint(Sketcher.Constraint("Symmetric", 25, 2, 30, 2, -1))
sketch4.addConstraint(Sketcher.Constraint("Symmetric", 35, 2, 36, 2, -1))
sketch4.addConstraint(Sketcher.Constraint("Symmetric", 33, 2, 38, 2, -1))
sketch4.addConstraint(Sketcher.Constraint("Symmetric", 43, 2, 44, 2, -1))
sketch4.addConstraint(Sketcher.Constraint("Symmetric", 41, 2, 46, 2, -1))
sketch4.addConstraint(Sketcher.Constraint("Symmetric", 51, 2, 52, 2, -1))
sketch4.addConstraint(Sketcher.Constraint("Symmetric", 49, 2, 54, 2, -1))
sketch4.addConstraint(Sketcher.Constraint("Symmetric", 59, 2, 60, 2, -1))
sketch4.addConstraint(Sketcher.Constraint("Symmetric", 57, 2, 62, 2, -1))
sketch4.addConstraint(Sketcher.Constraint("Horizontal", 1, 2, 8, 2))
sketch4.addConstraint(Sketcher.Constraint("Horizontal", 3, 2, 10, 2))
sketch4.addConstraint(Sketcher.Constraint("Horizontal", 9, 2, 16, 2))
sketch4.addConstraint(Sketcher.Constraint("Horizontal", 11, 2, 18, 2))
sketch4.addConstraint(Sketcher.Constraint("Horizontal", 17, 2, 24, 2))
sketch4.addConstraint(Sketcher.Constraint("Horizontal", 19, 2, 26, 2))
sketch4.addConstraint(Sketcher.Constraint("Horizontal", 25, 2, 32, 2))
sketch4.addConstraint(Sketcher.Constraint("Horizontal", 27, 2, 34, 2))
sketch4.addConstraint(Sketcher.Constraint("Horizontal", 33, 2, 40, 2))
sketch4.addConstraint(Sketcher.Constraint("Horizontal", 35, 2, 42, 2))
sketch4.addConstraint(Sketcher.Constraint("Horizontal", 41, 2, 48, 2))
sketch4.addConstraint(Sketcher.Constraint("Horizontal", 43, 2, 50, 2))
sketch4.addConstraint(Sketcher.Constraint("Horizontal", 49, 2, 56, 2))
sketch4.addConstraint(Sketcher.Constraint("Horizontal", 51, 2, 58, 2))
sketch4.addConstraint(Sketcher.Constraint("Equal", 7, 9))
sketch4.addConstraint(Sketcher.Constraint("Equal", 15, 17))
sketch4.addConstraint(Sketcher.Constraint("Equal", 23, 25))
sketch4.addConstraint(Sketcher.Constraint("Equal", 31, 33))
sketch4.addConstraint(Sketcher.Constraint("Equal", 39, 41))
sketch4.addConstraint(Sketcher.Constraint("Equal", 47, 49))
sketch4.addConstraint(Sketcher.Constraint("Equal", 55, 57))
sketch4.addConstraint(Sketcher.Constraint("DistanceX", 1, 1, 1, 2, 3.0))
sketch4.addConstraint(Sketcher.Constraint("DistanceY", 0, 1, 0, 2, 56.0))
sketch4.addConstraint(Sketcher.Constraint("DistanceX", 0, 2, -1, 1, 69.0))
sketch4.addConstraint(Sketcher.Constraint("DistanceY", 0, 2, -1, 1, 28.0))
sketch4.addConstraint(Sketcher.Constraint("DistanceX", 8, 2, -1, 1, 77.0))
sketch4.addConstraint(Sketcher.Constraint("DistanceX", 16, 2, -1, 1, 85.0))
sketch4.addConstraint(Sketcher.Constraint("DistanceX", 24, 2, -1, 1, 93.0))
sketch4.addConstraint(Sketcher.Constraint("DistanceX", 32, 2, -1, 1, 101.0))
sketch4.addConstraint(Sketcher.Constraint("DistanceX", 40, 2, -1, 1, 109.0))
sketch4.addConstraint(Sketcher.Constraint("DistanceX", 48, 2, -1, 1, 117.0))
sketch4.addConstraint(Sketcher.Constraint("DistanceX", 56, 2, -1, 1, 125.0))
sketch4.setExpression("Constraints[165]", "Params.sketch4_width")
sketch4.setExpression("Constraints[166]", "Params.sketch4_height")
pocket3 = body.newObject("PartDesign::Pocket", "Pocket002")
pocket3.Profile = sketch4
pocket3.setExpression("Length", "Params.pocket3_length")
pocket3.Reversed = True

# Sketch on YZ plane
sketch5 = body.newObject("Sketcher::SketchObject", "Sketch004")
sketch5.AttachmentSupport = (doc.getObject("YZ_Plane"), [""])
sketch5.MapMode = "FlatFace"
sketch5.addGeometry(Part.LineSegment(Vector(21, 29, 0), Vector(5, 29, 0)), False)
sketch5.addGeometry(Part.LineSegment(Vector(5, 29, 0), Vector(5, -29, 0)), False)
sketch5.addGeometry(Part.LineSegment(Vector(5, -29, 0), Vector(21, -29, 0)), False)
sketch5.addGeometry(Part.LineSegment(Vector(21, -29, 0), Vector(21, 29, 0)), False)
sketch5.addConstraint(Sketcher.Constraint("Coincident", 0, 2, 1, 1))
sketch5.addConstraint(Sketcher.Constraint("Coincident", 1, 2, 2, 1))
sketch5.addConstraint(Sketcher.Constraint("Coincident", 2, 2, 3, 1))
sketch5.addConstraint(Sketcher.Constraint("Coincident", 3, 2, 0, 1))
sketch5.addConstraint(Sketcher.Constraint("Horizontal", 0))
sketch5.addConstraint(Sketcher.Constraint("Vertical", 1))
sketch5.addConstraint(Sketcher.Constraint("Horizontal", 2))
sketch5.addConstraint(Sketcher.Constraint("Vertical", 3))
sketch5.addConstraint(Sketcher.Constraint("DistanceX", 0, 2, 0, 1, 16.0))
sketch5.addConstraint(Sketcher.Constraint("DistanceY", 1, 2, 1, 1, 58.0))
sketch5.addConstraint(Sketcher.Constraint("DistanceX", -1, 1, 0, 2, 5.0))
sketch5.addConstraint(Sketcher.Constraint("DistanceY", -1, 1, 0, 2, 29.0))
sketch5.setExpression("Constraints[8]", "Params.sketch5_width")
sketch5.setExpression("Constraints[9]", "Params.sketch5_height")
pocket4 = body.newObject("PartDesign::Pocket", "Pocket003")
pocket4.Profile = sketch5
pocket4.setExpression("Length", "Params.pocket4_length")

# Sketch on XZ plane
sketch6 = body.newObject("Sketcher::SketchObject", "Sketch005")
sketch6.AttachmentSupport = (doc.getObject("XZ_Plane"), [""])
sketch6.MapMode = "FlatFace"
sketch6.AttachmentOffset = App.Placement(Vector(0, 0, -3), App.Rotation())
sketch6.addGeometry(Part.Circle(Vector(-40, 45, 0), Vector(0, 0, 1), 1.7), False)
sketch6.addGeometry(Part.Circle(Vector(-40, -45, 0), Vector(0, 0, 1), 1.7), False)
sketch6.addGeometry(Part.Circle(Vector(40, 45, 0), Vector(0, 0, 1), 1.7), False)
sketch6.addGeometry(Part.Circle(Vector(40, -45, 0), Vector(0, 0, 1), 1.7), False)
sketch6.addGeometry(Part.Circle(Vector(-52, 15, 0), Vector(0, 0, 1), 1.7), False)
sketch6.addGeometry(Part.Circle(Vector(-52, -15, 0), Vector(0, 0, 1), 1.7), False)
sketch6.addGeometry(Part.Circle(Vector(52, 15, 0), Vector(0, 0, 1), 1.7), False)
sketch6.addGeometry(Part.Circle(Vector(52, -15, 0), Vector(0, 0, 1), 1.7), False)
sketch6.addGeometry(Part.Circle(Vector(-12, 82, 0), Vector(0, 0, 1), 1.7), False)
sketch6.addGeometry(Part.Circle(Vector(-12, -82, 0), Vector(0, 0, 1), 1.7), False)
sketch6.addGeometry(Part.Circle(Vector(12, 82, 0), Vector(0, 0, 1), 1.7), False)
sketch6.addGeometry(Part.Circle(Vector(12, -82, 0), Vector(0, 0, 1), 1.7), False)
sketch6.addGeometry(Part.Circle(Vector(-124, 12, 0), Vector(0, 0, 1), 1.7), False)
sketch6.addGeometry(Part.Circle(Vector(-124, -12, 0), Vector(0, 0, 1), 1.7), False)
sketch6.addGeometry(Part.Circle(Vector(124, 12, 0), Vector(0, 0, 1), 1.7), False)
sketch6.addGeometry(Part.Circle(Vector(124, -12, 0), Vector(0, 0, 1), 1.7), False)
sketch6.addGeometry(Part.Circle(Vector(-72, -12, 0), Vector(0, 0, 1), 1.7), False)
sketch6.addGeometry(Part.Circle(Vector(-72, 12, 0), Vector(0, 0, 1), 1.7), False)
sketch6.addConstraint(Sketcher.Constraint("Equal", 0, 1))
sketch6.addConstraint(Sketcher.Constraint("Equal", 1, 2))
sketch6.addConstraint(Sketcher.Constraint("Equal", 2, 3))
sketch6.addConstraint(Sketcher.Constraint("Equal", 3, 4))
sketch6.addConstraint(Sketcher.Constraint("Equal", 4, 5))
sketch6.addConstraint(Sketcher.Constraint("Equal", 5, 6))
sketch6.addConstraint(Sketcher.Constraint("Equal", 6, 7))
sketch6.addConstraint(Sketcher.Constraint("Equal", 7, 8))
sketch6.addConstraint(Sketcher.Constraint("Equal", 8, 9))
sketch6.addConstraint(Sketcher.Constraint("Equal", 9, 10))
sketch6.addConstraint(Sketcher.Constraint("Equal", 10, 11))
sketch6.addConstraint(Sketcher.Constraint("Equal", 11, 12))
sketch6.addConstraint(Sketcher.Constraint("Equal", 12, 13))
sketch6.addConstraint(Sketcher.Constraint("Equal", 13, 14))
sketch6.addConstraint(Sketcher.Constraint("Equal", 14, 15))
sketch6.addConstraint(Sketcher.Constraint("Equal", 15, 16))
sketch6.addConstraint(Sketcher.Constraint("Equal", 16, 17))
sketch6.addConstraint(Sketcher.Constraint("Symmetric", 1, 3, 2, 3, -1, 1))
sketch6.addConstraint(Sketcher.Constraint("Symmetric", 0, 3, 3, 3, -1, 1))
sketch6.addConstraint(Sketcher.Constraint("Symmetric", 5, 3, 6, 3, -1, 1))
sketch6.addConstraint(Sketcher.Constraint("Symmetric", 4, 3, 7, 3, -1, 1))
sketch6.addConstraint(Sketcher.Constraint("Symmetric", 9, 3, 10, 3, -1, 1))
sketch6.addConstraint(Sketcher.Constraint("Symmetric", 8, 3, 11, 3, -1, 1))
sketch6.addConstraint(Sketcher.Constraint("Symmetric", 13, 3, 14, 3, -1, 1))
sketch6.addConstraint(Sketcher.Constraint("Symmetric", 12, 3, 15, 3, -1, 1))
sketch6.addConstraint(Sketcher.Constraint("Symmetric", 0, 3, 2, 3, -2))
sketch6.addConstraint(Sketcher.Constraint("Symmetric", 4, 3, 6, 3, -2))
sketch6.addConstraint(Sketcher.Constraint("Symmetric", 8, 3, 10, 3, -2))
sketch6.addConstraint(Sketcher.Constraint("Symmetric", 12, 3, 14, 3, -2))
sketch6.addConstraint(Sketcher.Constraint("Symmetric", 16, 3, 17, 3, -1))
sketch6.addConstraint(Sketcher.Constraint("Horizontal", 15, 3, 16, 3))
sketch6.addConstraint(Sketcher.Constraint("Diameter", 0, 3.4))
sketch6.addConstraint(Sketcher.Constraint("DistanceX", 0, 3, -1, 1, 40.0))
sketch6.addConstraint(Sketcher.Constraint("DistanceY", -1, 1, 0, 3, 45.0))
sketch6.addConstraint(Sketcher.Constraint("DistanceX", 4, 3, -1, 1, 52.0))
sketch6.addConstraint(Sketcher.Constraint("DistanceY", -1, 1, 4, 3, 15.0))
sketch6.addConstraint(Sketcher.Constraint("DistanceX", 8, 3, -1, 1, 12.0))
sketch6.addConstraint(Sketcher.Constraint("DistanceY", -1, 1, 8, 3, 82.0))
sketch6.addConstraint(Sketcher.Constraint("DistanceX", 12, 3, -1, 1, 124.0))
sketch6.addConstraint(Sketcher.Constraint("DistanceY", -1, 1, 12, 3, 12.0))
sketch6.addConstraint(Sketcher.Constraint("DistanceX", 16, 3, -1, 1, 72.0))
sketch6.setExpression("Constraints[31]", "Params.sketch6_diameter")
pocket5 = body.newObject("PartDesign::Pocket", "Pocket004")
pocket5.Profile = sketch6
pocket5.setExpression("Length", "Params.pocket5_length")
pocket5.Reversed = True

doc.recompute()
